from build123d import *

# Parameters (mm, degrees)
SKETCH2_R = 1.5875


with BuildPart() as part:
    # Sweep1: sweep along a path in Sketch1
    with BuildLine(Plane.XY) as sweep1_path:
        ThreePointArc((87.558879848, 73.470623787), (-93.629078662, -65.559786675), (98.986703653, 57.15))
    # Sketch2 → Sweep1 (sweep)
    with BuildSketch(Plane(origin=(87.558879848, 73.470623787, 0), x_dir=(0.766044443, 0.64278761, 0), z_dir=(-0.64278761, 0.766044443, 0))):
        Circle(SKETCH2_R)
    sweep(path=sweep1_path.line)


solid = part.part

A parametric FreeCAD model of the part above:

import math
import FreeCAD as App
import Part
import Sketcher
from FreeCAD import Vector
Q = App.Units.Quantity

doc = App.newDocument("Part")
body = doc.addObject("PartDesign::Body", "Body")

# Sketch on an angled plane
sketch1 = body.newObject("Sketcher::SketchObject", "Sketch")
sketch1.Placement = App.Placement(Vector(87.55888, 73.470624, 0), App.Rotation(Vector(0.766044443, 0.64278761, 0), Vector(0, 0, -1), Vector(-0.64278761, 0.766044443, 0), "ZXY"))
sketch1.addGeometry(Part.Circle(Vector(0, 0, 0), Vector(0, 0, 1), 1.6), False)
sketch1.addConstraint([
    Sketcher.Constraint("Coincident", 0, 3, -1, 1),
    Sketcher.Constraint("Diameter", 0, Q("0.125 in")),
])

# Sketch on XY plane
sketch2 = body.newObject("Sketcher::SketchObject", "Sketch001")
sketch2.AttachmentSupport = (doc.getObject("XY_Plane"), [""])
sketch2.MapMode = "FlatFace"
sketch2.addGeometry(Part.ArcOfCircle(Part.Circle(Vector(0, 0, 0), Vector(0, 0, 1), 114), math.radians(40), math.radians(390)), False)
sketch2.addConstraint([
    Sketcher.Constraint("Coincident", 0, 3, -1, 1),
    Sketcher.Constraint("Radius", 0, Q("4.5 in")),
    Sketcher.Constraint("DistanceY", -1, 1, 0, 2, Q("2.25 in")),
    Sketcher.Constraint("DistanceX", -1, 1, 0, 1, Q("3.4472 in")),
])
doc.recompute()

additivepipe = body.newObject("PartDesign::AdditivePipe", "AdditivePipe")
additivepipe.Profile = sketch1
additivepipe.Spine = (sketch2, ["Edge1"])

doc.recompute()
